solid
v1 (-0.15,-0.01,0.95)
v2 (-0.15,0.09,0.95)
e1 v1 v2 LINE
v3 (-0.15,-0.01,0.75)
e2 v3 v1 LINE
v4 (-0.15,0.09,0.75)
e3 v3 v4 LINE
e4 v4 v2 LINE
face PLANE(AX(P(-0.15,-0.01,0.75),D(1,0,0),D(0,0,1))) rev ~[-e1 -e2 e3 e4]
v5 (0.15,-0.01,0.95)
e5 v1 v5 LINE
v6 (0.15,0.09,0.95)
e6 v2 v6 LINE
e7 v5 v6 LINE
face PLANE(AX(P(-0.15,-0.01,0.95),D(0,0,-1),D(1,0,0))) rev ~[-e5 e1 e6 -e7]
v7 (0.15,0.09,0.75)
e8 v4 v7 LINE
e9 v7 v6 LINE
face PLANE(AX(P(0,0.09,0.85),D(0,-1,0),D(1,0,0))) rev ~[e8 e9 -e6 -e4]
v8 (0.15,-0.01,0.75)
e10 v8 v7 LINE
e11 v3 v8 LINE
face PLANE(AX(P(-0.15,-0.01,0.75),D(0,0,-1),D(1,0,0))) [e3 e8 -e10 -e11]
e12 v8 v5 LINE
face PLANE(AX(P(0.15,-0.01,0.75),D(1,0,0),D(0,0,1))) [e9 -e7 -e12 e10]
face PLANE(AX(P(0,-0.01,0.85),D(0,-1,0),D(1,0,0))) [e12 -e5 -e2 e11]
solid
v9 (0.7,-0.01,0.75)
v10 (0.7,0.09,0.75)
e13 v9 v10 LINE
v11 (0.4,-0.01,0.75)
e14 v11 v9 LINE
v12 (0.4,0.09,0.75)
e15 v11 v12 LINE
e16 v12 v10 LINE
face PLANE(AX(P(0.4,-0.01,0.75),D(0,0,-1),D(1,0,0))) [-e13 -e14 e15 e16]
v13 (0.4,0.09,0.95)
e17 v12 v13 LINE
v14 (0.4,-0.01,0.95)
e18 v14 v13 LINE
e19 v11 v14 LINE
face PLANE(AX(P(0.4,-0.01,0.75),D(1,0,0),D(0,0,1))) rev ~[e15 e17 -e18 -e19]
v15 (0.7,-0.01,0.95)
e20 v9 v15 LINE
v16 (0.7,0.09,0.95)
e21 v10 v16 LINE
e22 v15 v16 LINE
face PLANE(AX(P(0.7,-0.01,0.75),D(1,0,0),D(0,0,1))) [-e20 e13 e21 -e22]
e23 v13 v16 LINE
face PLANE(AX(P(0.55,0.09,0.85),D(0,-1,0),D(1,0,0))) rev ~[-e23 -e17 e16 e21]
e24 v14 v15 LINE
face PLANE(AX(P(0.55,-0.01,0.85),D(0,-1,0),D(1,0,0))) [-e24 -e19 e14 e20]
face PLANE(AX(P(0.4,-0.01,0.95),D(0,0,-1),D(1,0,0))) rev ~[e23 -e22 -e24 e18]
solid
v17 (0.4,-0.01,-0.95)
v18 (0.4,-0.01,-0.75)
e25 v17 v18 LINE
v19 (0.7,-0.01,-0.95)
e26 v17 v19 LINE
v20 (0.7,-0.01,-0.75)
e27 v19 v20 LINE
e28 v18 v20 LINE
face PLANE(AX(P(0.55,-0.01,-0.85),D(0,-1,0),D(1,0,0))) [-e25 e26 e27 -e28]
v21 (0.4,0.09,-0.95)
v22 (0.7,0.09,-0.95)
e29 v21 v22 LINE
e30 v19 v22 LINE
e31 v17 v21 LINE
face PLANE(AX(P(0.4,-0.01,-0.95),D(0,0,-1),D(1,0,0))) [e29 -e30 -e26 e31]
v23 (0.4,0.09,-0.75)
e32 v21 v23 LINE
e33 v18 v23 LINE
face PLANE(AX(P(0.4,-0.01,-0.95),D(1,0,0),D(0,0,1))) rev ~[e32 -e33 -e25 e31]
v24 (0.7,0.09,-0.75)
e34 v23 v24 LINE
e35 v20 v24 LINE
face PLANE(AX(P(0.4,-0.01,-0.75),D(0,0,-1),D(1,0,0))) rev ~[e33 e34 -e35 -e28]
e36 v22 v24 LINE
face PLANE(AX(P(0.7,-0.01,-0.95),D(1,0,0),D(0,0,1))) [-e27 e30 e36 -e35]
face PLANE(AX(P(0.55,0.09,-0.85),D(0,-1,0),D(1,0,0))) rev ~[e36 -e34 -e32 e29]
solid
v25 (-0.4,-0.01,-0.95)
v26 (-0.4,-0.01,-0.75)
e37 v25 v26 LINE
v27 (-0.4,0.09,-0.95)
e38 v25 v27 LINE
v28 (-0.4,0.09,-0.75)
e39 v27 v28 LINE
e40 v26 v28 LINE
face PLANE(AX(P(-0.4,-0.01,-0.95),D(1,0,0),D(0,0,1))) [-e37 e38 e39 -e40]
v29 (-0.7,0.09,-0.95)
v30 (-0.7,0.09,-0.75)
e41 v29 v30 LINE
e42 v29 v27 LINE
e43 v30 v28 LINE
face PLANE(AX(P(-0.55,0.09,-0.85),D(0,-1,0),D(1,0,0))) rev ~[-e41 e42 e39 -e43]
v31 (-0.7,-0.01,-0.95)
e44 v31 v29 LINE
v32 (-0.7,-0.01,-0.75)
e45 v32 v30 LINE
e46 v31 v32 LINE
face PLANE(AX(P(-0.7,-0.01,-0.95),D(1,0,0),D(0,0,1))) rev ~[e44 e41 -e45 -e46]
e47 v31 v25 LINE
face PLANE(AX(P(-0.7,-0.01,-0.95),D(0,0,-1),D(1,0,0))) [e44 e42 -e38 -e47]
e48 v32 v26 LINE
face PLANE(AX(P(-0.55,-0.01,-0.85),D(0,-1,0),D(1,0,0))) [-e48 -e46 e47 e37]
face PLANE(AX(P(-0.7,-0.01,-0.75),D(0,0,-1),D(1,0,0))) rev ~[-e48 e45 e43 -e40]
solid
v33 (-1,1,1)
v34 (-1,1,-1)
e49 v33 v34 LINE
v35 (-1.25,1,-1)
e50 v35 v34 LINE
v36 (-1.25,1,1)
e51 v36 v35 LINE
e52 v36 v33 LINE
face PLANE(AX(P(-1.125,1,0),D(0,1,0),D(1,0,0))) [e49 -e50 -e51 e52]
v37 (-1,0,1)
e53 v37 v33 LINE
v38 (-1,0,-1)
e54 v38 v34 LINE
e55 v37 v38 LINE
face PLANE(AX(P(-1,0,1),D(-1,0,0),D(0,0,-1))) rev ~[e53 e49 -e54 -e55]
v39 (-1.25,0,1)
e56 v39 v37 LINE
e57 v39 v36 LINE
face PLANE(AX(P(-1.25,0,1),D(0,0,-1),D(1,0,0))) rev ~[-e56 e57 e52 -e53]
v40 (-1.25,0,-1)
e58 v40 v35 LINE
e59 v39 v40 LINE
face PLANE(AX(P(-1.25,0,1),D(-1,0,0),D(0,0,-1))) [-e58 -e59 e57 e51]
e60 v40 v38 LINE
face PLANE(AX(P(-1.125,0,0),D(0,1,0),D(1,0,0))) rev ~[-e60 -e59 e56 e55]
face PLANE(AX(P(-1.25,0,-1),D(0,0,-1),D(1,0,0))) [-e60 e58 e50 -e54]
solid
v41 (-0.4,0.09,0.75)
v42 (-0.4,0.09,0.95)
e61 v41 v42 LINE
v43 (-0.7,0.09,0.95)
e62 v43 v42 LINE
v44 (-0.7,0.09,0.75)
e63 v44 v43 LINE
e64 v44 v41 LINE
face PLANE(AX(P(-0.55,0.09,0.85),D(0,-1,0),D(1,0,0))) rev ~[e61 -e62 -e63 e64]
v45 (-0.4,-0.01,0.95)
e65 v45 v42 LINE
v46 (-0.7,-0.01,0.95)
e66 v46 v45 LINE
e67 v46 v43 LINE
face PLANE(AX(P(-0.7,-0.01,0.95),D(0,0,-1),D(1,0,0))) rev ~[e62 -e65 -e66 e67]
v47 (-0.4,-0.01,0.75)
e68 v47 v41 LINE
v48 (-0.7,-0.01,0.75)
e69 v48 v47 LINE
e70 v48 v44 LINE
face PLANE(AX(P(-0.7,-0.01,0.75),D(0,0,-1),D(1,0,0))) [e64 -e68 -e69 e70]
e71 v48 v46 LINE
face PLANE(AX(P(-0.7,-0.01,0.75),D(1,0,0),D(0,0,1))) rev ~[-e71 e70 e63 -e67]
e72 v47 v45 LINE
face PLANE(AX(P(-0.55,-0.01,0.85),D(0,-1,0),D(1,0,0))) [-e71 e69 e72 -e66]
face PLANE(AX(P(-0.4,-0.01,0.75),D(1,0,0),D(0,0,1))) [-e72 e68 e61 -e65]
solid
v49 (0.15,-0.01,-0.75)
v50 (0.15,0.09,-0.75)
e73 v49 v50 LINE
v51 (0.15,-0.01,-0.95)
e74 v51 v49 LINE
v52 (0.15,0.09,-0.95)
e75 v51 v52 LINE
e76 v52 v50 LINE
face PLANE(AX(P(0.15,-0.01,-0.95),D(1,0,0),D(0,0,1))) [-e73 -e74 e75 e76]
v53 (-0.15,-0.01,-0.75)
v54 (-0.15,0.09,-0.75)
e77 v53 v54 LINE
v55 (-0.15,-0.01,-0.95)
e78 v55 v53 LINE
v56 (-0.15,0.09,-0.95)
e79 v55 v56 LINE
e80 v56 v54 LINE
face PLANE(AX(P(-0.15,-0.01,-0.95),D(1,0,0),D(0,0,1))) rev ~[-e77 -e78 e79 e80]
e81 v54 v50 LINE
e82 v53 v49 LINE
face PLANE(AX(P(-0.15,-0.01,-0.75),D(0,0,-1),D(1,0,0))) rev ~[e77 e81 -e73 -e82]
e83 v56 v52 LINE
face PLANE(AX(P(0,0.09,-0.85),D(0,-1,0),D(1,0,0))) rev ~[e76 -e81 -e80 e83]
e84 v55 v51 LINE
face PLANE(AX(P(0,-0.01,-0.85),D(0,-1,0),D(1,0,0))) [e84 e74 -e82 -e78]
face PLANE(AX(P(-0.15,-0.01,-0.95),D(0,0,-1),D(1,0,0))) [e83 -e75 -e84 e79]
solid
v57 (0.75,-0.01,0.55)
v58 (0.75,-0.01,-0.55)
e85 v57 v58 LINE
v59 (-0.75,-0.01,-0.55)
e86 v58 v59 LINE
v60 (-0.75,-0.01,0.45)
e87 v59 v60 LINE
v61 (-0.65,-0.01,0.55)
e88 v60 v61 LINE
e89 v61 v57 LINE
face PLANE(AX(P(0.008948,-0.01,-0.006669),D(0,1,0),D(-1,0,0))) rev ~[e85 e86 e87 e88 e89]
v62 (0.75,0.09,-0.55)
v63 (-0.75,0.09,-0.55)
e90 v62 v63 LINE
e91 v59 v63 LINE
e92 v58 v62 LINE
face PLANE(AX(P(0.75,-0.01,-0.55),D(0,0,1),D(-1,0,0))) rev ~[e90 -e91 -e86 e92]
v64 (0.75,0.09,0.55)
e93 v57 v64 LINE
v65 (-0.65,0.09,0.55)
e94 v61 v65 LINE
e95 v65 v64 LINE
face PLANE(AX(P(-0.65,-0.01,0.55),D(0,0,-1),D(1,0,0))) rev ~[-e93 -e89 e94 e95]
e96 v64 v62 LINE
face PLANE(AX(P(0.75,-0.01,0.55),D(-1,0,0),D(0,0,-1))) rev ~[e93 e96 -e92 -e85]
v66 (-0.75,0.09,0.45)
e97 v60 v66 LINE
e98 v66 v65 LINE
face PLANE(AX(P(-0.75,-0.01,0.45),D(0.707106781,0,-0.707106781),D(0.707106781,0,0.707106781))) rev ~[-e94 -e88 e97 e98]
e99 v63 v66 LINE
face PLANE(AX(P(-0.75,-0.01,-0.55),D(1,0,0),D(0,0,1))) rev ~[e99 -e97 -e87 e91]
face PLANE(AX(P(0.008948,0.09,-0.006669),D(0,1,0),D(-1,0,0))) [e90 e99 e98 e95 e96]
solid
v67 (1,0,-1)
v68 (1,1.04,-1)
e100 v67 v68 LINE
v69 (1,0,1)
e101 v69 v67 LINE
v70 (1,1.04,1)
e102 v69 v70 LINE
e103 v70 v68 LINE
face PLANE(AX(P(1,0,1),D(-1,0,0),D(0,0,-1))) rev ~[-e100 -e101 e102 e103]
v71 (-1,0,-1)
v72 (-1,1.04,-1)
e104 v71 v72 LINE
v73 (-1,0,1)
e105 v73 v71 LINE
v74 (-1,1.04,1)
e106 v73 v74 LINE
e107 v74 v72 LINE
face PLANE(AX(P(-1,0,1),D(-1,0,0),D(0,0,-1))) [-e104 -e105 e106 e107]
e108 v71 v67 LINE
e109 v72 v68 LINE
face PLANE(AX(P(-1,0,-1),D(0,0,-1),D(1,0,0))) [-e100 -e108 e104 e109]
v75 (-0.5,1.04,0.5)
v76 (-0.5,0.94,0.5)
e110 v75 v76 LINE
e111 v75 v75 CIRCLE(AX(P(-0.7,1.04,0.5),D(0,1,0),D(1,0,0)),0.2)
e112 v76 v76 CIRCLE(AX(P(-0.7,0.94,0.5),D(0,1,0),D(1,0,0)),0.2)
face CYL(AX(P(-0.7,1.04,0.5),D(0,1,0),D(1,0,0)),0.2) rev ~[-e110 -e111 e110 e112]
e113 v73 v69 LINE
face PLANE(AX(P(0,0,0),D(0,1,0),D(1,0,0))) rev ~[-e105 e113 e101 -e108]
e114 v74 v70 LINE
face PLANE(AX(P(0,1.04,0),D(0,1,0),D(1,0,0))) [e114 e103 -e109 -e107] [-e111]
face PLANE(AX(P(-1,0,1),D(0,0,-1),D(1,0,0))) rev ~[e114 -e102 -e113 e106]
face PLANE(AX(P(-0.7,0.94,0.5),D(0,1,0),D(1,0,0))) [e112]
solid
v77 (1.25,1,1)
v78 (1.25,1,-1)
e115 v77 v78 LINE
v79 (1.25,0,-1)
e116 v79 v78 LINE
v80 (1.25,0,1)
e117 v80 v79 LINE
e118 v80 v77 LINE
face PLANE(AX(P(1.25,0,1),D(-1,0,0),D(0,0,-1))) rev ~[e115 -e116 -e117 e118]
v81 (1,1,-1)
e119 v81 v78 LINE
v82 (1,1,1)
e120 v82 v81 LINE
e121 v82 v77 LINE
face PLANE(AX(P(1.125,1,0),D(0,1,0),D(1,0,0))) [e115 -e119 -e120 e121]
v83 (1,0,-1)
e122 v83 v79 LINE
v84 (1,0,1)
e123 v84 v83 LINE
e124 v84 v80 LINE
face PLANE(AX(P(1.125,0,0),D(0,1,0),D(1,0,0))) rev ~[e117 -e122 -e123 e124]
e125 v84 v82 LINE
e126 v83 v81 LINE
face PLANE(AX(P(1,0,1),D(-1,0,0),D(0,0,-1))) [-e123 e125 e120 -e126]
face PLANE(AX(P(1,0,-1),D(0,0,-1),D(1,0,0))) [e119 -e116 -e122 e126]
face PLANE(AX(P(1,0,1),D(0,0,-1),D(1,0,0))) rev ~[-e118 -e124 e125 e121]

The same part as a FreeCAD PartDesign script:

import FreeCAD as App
import Part
import Sketcher
Q = App.Units.Quantity


def add_polygon(sketch, points):
    """Adds a closed chain of lines whose ends are joined by coincident constraints."""
    first, n = sketch.GeometryCount, len(points)
    for a, b in zip(points, points[1:] + points[:1]):
        sketch.addGeometry(Part.LineSegment(App.Vector(*a, 0), App.Vector(*b, 0)), False)
    for i in range(n):
        sketch.addConstraint(Sketcher.Constraint("Coincident", first + i, 2, first + (i + 1) % n, 1))

doc = App.newDocument("Part")
body = doc.addObject("PartDesign::Body", "Body")

sketch1 = doc.addObject("Sketcher::SketchObject", "Sketch")
body.addObject(sketch1)
sketch1.AttachmentSupport = (doc.XZ_Plane, [""])
sketch1.MapMode = "FlatFace"
add_polygon(sketch1, [(-1, -1), (-1, 1), (1, 1), (1, -1)])
sketch1.addConstraint(Sketcher.Constraint("Vertical", 0))
sketch1.addConstraint(Sketcher.Constraint("Horizontal", 1))
sketch1.addConstraint(Sketcher.Constraint("Vertical", 2))
sketch1.addConstraint(Sketcher.Constraint("Horizontal", 3))
sketch1.addConstraint(Sketcher.Constraint("Symmetric", 0, 2, 2, 2, -1, 1))
sketch1.addConstraint(Sketcher.Constraint("Equal", 3, 0))
sketch1.addConstraint(Sketcher.Constraint("DistanceX", 1, 1, 1, 2, 2.0))
pad1 = doc.addObject("PartDesign::Pad", "Pad")
body.addObject(pad1)
pad1.Profile = sketch1
pad1.Length = 1.04
pad1.Reversed = True

sketch2 = doc.addObject("Sketcher::SketchObject", "Sketch001")
body.addObject(sketch2)
sketch2.AttachmentSupport = (doc.XZ_Plane, [""])
sketch2.MapMode = "FlatFace"
sketch2.AttachmentOffset = App.Placement(App.Vector(0, 0, -1.04), App.Rotation())
sketch2.addGeometry(Part.Circle(App.Vector(-0.7, 0.5, 0), App.Vector(0, 0, 1), 0.2), False)
sketch2.addConstraint(Sketcher.Constraint("Diameter", 0, 0.4))
sketch2.addConstraint(Sketcher.Constraint("DistanceX", 0, 3, -1, 1, 0.7))
sketch2.addConstraint(Sketcher.Constraint("DistanceY", -1, 1, 0, 3, 0.5))
pocket1 = doc.addObject("PartDesign::Pocket", "Pocket")
body.addObject(pocket1)
pocket1.Profile = sketch2
pocket1.Length = 0.1
pocket1.Reversed = True
body2 = doc.addObject("PartDesign::Body", "Body001")

sketch3 = doc.addObject("Sketcher::SketchObject", "Sketch002")
body2.addObject(sketch3)
sketch3.AttachmentSupport = (doc.getObject("XZ_Plane001"), [""])
sketch3.MapMode = "FlatFace"
add_polygon(sketch3, [(-1.25, -1), (-1.25, 1), (-1, 1), (-1, -1)])
sketch3.addConstraint(Sketcher.Constraint("Vertical", 0))
sketch3.addConstraint(Sketcher.Constraint("Horizontal", 1))
sketch3.addConstraint(Sketcher.Constraint("Vertical", 2))
sketch3.addConstraint(Sketcher.Constraint("Horizontal", 3))
sketch3.addConstraint(Sketcher.Constraint("DistanceY", 0, 1, 0, 2, 2.0))
sketch3.addConstraint(Sketcher.Constraint("DistanceY", -1, 1, 0, 2, 1.0))
sketch3.addConstraint(Sketcher.Constraint("DistanceX", 1, 2, -1, 1, 1.0))
sketch3.addConstraint(Sketcher.Constraint("DistanceX", 1, 1, 1, 2, 0.25))
pad2 = doc.addObject("PartDesign::Pad", "Pad001")
body2.addObject(pad2)
pad2.Profile = sketch3
pad2.Length = 1
pad2.Reversed = True
body3 = doc.addObject("PartDesign::Body", "Body002")

sketch4 = doc.addObject("Sketcher::SketchObject", "Sketch003")
body3.addObject(sketch4)
sketch4.AttachmentSupport = (doc.getObject("XZ_Plane002"), [""])
sketch4.MapMode = "FlatFace"
add_polygon(sketch4, [(1, -1), (1, 1), (1.25, 1), (1.25, -1)])
sketch4.addConstraint(Sketcher.Constraint("Vertical", 0))
sketch4.addConstraint(Sketcher.Constraint("Horizontal", 1))
sketch4.addConstraint(Sketcher.Constraint("Vertical", 2))
sketch4.addConstraint(Sketcher.Constraint("Horizontal", 3))
sketch4.addConstraint(Sketcher.Constraint("DistanceY", 0, 1, 0, 2, 2.0))
sketch4.addConstraint(Sketcher.Constraint("DistanceX", -1, 1, 0, 2, 1.0))
sketch4.addConstraint(Sketcher.Constraint("DistanceY", -1, 1, 0, 2, 1.0))
sketch4.addConstraint(Sketcher.Constraint("DistanceX", 1, 1, 1, 2, 0.25))
pad3 = doc.addObject("PartDesign::Pad", "Pad002")
body3.addObject(pad3)
pad3.Profile = sketch4
pad3.Length = 1
pad3.Reversed = True
body4 = doc.addObject("PartDesign::Body", "Body003")

sketch5 = doc.addObject("Sketcher::SketchObject", "Sketch004")
body4.addObject(sketch5)
sketch5.AttachmentSupport = (doc.getObject("XZ_Plane003"), [""])
sketch5.MapMode = "FlatFace"
sketch5.AttachmentOffset = App.Placement(App.Vector(0, 0, 0.01), App.Rotation())
add_polygon(sketch5, [(-0.65, 0.55), (-0.75, 0.45), (-0.75, -0.55), (0.75, -0.55), (0.75, 0.55)])
sketch5.addConstraint(Sketcher.Constraint("Vertical", 1))
sketch5.addConstraint(Sketcher.Constraint("Horizontal", 2))
sketch5.addConstraint(Sketcher.Constraint("Vertical", 3))
sketch5.addConstraint(Sketcher.Constraint("Horizontal", 4))
sketch5.addConstraint(Sketcher.Constraint("Symmetric", 1, 2, 3, 2, -1, 1))
sketch5.addConstraint(Sketcher.Constraint("DistanceY", 1, 2, 1, 1, 1.0))
sketch5.addConstraint(Sketcher.Constraint("Angle", 0, Q("-135 deg")))
sketch5.addConstraint(Sketcher.Constraint("DistanceX", 2, 1, 2, 2, 1.5))
sketch5.addConstraint(Sketcher.Constraint("DistanceX", 4, 2, 4, 1, 1.4))
pad4 = doc.addObject("PartDesign::Pad", "Pad003")
body4.addObject(pad4)
pad4.Profile = sketch5
pad4.Length = 0.1
pad4.Reversed = True
body5 = doc.addObject("PartDesign::Body", "Body004")

sketch6 = doc.addObject("Sketcher::SketchObject", "Sketch005")
body5.addObject(sketch6)
sketch6.AttachmentSupport = (doc.getObject("XZ_Plane004"), [""])
sketch6.MapMode = "FlatFace"
sketch6.AttachmentOffset = App.Placement(App.Vector(0, 0, 0.01), App.Rotation())
add_polygon(sketch6, [(0.4, -0.75), (0.4, -0.95), (0.7, -0.95), (0.7, -0.75)])
sketch6.addConstraint(Sketcher.Constraint("Vertical", 0))
sketch6.addConstraint(Sketcher.Constraint("Horizontal", 1))
sketch6.addConstraint(Sketcher.Constraint("Vertical", 2))
sketch6.addConstraint(Sketcher.Constraint("Horizontal", 3))
sketch6.addConstraint(Sketcher.Constraint("DistanceX", 1, 1, 1, 2, 0.3))
sketch6.addConstraint(Sketcher.Constraint("DistanceY", 0, 2, 0, 1, 0.2))
sketch6.addConstraint(Sketcher.Constraint("DistanceX", -1, 1, 0, 2, 0.4))
sketch6.addConstraint(Sketcher.Constraint("DistanceY", 0, 2, -1, 1, 0.95))
pad5 = doc.addObject("PartDesign::Pad", "Pad004")
body5.addObject(pad5)
pad5.Profile = sketch6
pad5.Length = 0.1
pad5.Reversed = True
body6 = doc.addObject("PartDesign::Body", "Body005")

sketch7 = doc.addObject("Sketcher::SketchObject", "Sketch006")
body6.addObject(sketch7)
sketch7.AttachmentSupport = (doc.getObject("XZ_Plane005"), [""])
sketch7.MapMode = "FlatFace"
sketch7.AttachmentOffset = App.Placement(App.Vector(0, 0, 0.01), App.Rotation())
add_polygon(sketch7, [(-0.15, -0.75), (-0.15, -0.95), (0.15, -0.95), (0.15, -0.75)])
sketch7.addConstraint(Sketcher.Constraint("Vertical", 0))
sketch7.addConstraint(Sketcher.Constraint("Horizontal", 1))
sketch7.addConstraint(Sketcher.Constraint("Vertical", 2))
sketch7.addConstraint(Sketcher.Constraint("Horizontal", 3))
sketch7.addConstraint(Sketcher.Constraint("DistanceX", 1, 1, 1, 2, 0.3))
sketch7.addConstraint(Sketcher.Constraint("DistanceY", 0, 2, 0, 1, 0.2))
sketch7.addConstraint(Sketcher.Constraint("DistanceX", 0, 2, -1, 1, 0.15))
sketch7.addConstraint(Sketcher.Constraint("DistanceY", 0, 2, -1, 1, 0.95))
pad6 = doc.addObject("PartDesign::Pad", "Pad005")
body6.addObject(pad6)
pad6.Profile = sketch7
pad6.Length = 0.1
pad6.Reversed = True
body7 = doc.addObject("PartDesign::Body", "Body006")

sketch8 = doc.addObject("Sketcher::SketchObject", "Sketch007")
body7.addObject(sketch8)
sketch8.AttachmentSupport = (doc.getObject("XZ_Plane006"), [""])
sketch8.MapMode = "FlatFace"
sketch8.AttachmentOffset = App.Placement(App.Vector(0, 0, 0.01), App.Rotation())
add_polygon(sketch8, [(-0.7, -0.75), (-0.7, -0.95), (-0.4, -0.95), (-0.4, -0.75)])
sketch8.addConstraint(Sketcher.Constraint("Vertical", 0))
sketch8.addConstraint(Sketcher.Constraint("Horizontal", 1))
sketch8.addConstraint(Sketcher.Constraint("Vertical", 2))
sketch8.addConstraint(Sketcher.Constraint("Horizontal", 3))
sketch8.addConstraint(Sketcher.Constraint("DistanceX", 1, 1, 1, 2, 0.3))
sketch8.addConstraint(Sketcher.Constraint("DistanceY", 0, 2, 0, 1, 0.2))
sketch8.addConstraint(Sketcher.Constraint("DistanceX", 0, 2, -1, 1, 0.7))
sketch8.addConstraint(Sketcher.Constraint("DistanceY", 0, 2, -1, 1, 0.95))
pad7 = doc.addObject("PartDesign::Pad", "Pad006")
body7.addObject(pad7)
pad7.Profile = sketch8
pad7.Length = 0.1
pad7.Reversed = True
body8 = doc.addObject("PartDesign::Body", "Body007")

sketch9 = doc.addObject("Sketcher::SketchObject", "Sketch008")
body8.addObject(sketch9)
sketch9.AttachmentSupport = (doc.getObject("XZ_Plane007"), [""])
sketch9.MapMode = "FlatFace"
sketch9.AttachmentOffset = App.Placement(App.Vector(0, 0, 0.01), App.Rotation())
add_polygon(sketch9, [(-0.7, 0.95), (-0.7, 0.75), (-0.4, 0.75), (-0.4, 0.95)])
sketch9.addConstraint(Sketcher.Constraint("Vertical", 0))
sketch9.addConstraint(Sketcher.Constraint("Horizontal", 1))
sketch9.addConstraint(Sketcher.Constraint("Vertical", 2))
sketch9.addConstraint(Sketcher.Constraint("Horizontal", 3))
sketch9.addConstraint(Sketcher.Constraint("DistanceX", 1, 1, 1, 2, 0.3))
sketch9.addConstraint(Sketcher.Constraint("DistanceY", 0, 2, 0, 1, 0.2))
sketch9.addConstraint(Sketcher.Constraint("DistanceX", 0, 2, -1, 1, 0.7))
sketch9.addConstraint(Sketcher.Constraint("DistanceY", -1, 1, 0, 2, 0.75))
pad8 = doc.addObject("PartDesign::Pad", "Pad007")
body8.addObject(pad8)
pad8.Profile = sketch9
pad8.Length = 0.1
pad8.Reversed = True
body9 = doc.addObject("PartDesign::Body", "Body008")

sketch10 = doc.addObject("Sketcher::SketchObject", "Sketch009")
body9.addObject(sketch10)
sketch10.AttachmentSupport = (doc.getObject("XZ_Plane008"), [""])
sketch10.MapMode = "FlatFace"
sketch10.AttachmentOffset = App.Placement(App.Vector(0, 0, 0.01), App.Rotation())
add_polygon(sketch10, [(0.4, 0.95), (0.4, 0.75), (0.7, 0.75), (0.7, 0.95)])
sketch10.addConstraint(Sketcher.Constraint("Vertical", 0))
sketch10.addConstraint(Sketcher.Constraint("Horizontal", 1))
sketch10.addConstraint(Sketcher.Constraint("Vertical", 2))
sketch10.addConstraint(Sketcher.Constraint("Horizontal", 3))
sketch10.addConstraint(Sketcher.Constraint("DistanceX", 1, 1, 1, 2, 0.3))
sketch10.addConstraint(Sketcher.Constraint("DistanceY", 0, 2, 0, 1, 0.2))
sketch10.addConstraint(Sketcher.Constraint("DistanceX", -1, 1, 0, 2, 0.4))
sketch10.addConstraint(Sketcher.Constraint("DistanceY", -1, 1, 0, 2, 0.75))
pad9 = doc.addObject("PartDesign::Pad", "Pad008")
body9.addObject(pad9)
pad9.Profile = sketch10
pad9.Length = 0.1
pad9.Reversed = True
body10 = doc.addObject("PartDesign::Body", "Body009")

sketch11 = doc.addObject("Sketcher::SketchObject", "Sketch010")
body10.addObject(sketch11)
sketch11.AttachmentSupport = (doc.getObject("XZ_Plane009"), [""])
sketch11.MapMode = "FlatFace"
sketch11.AttachmentOffset = App.Placement(App.Vector(0, 0, 0.01), App.Rotation())
add_polygon(sketch11, [(-0.15, 0.95), (-0.15, 0.75), (0.15, 0.75), (0.15, 0.95)])
sketch11.addConstraint(Sketcher.Constraint("Vertical", 0))
sketch11.addConstraint(Sketcher.Constraint("Horizontal", 1))
sketch11.addConstraint(Sketcher.Constraint("Vertical", 2))
sketch11.addConstraint(Sketcher.Constraint("Horizontal", 3))
sketch11.addConstraint(Sketcher.Constraint("DistanceX", 1, 1, 1, 2, 0.3))
sketch11.addConstraint(Sketcher.Constraint("DistanceY", 0, 2, 0, 1, 0.2))
sketch11.addConstraint(Sketcher.Constraint("DistanceX", 0, 2, -1, 1, 0.15))
sketch11.addConstraint(Sketcher.Constraint("DistanceY", -1, 1, 0, 2, 0.75))
pad10 = doc.addObject("PartDesign::Pad", "Pad009")
body10.addObject(pad10)
pad10.Profile = sketch11
pad10.Length = 0.1
pad10.Reversed = True

doc.recompute()
